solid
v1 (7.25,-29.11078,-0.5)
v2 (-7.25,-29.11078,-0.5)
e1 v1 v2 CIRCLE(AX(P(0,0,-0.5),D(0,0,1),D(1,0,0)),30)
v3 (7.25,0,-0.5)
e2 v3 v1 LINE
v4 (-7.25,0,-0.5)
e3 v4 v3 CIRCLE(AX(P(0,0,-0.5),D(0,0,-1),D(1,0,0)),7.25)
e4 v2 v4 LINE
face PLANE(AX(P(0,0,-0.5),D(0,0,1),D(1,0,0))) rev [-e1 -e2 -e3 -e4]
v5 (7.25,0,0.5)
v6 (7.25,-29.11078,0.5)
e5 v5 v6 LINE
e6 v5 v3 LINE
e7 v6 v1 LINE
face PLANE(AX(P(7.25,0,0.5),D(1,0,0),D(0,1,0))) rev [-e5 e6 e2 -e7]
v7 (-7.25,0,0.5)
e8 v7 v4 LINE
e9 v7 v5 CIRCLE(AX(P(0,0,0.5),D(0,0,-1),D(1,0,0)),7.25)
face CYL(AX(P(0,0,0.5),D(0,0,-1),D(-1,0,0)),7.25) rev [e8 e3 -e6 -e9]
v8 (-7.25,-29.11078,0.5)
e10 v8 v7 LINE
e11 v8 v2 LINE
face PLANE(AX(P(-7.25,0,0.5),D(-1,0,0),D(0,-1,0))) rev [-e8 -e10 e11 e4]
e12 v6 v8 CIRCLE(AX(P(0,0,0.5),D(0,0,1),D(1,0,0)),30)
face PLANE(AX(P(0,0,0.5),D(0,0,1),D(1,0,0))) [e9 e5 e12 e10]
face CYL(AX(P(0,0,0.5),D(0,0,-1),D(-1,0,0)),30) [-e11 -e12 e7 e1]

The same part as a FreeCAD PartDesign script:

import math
import FreeCAD as App
import Part
import Sketcher
Q = App.Units.Quantity

doc = App.newDocument("Part")
params = doc.addObject("Spreadsheet::Sheet", "Params")
for row, (alias, value) in enumerate([
    ("sketch1_radius", "30 mm"),
    ("sketch1_radius2", "7.25 mm"),
    ("pad1_length", "1 mm"),
], start=1):
    params.set(f"A{row}", alias)
    params.set(f"B{row}", "=" + value)
    params.setAlias(f"B{row}", alias)

body = doc.addObject("PartDesign::Body", "Body")

# Sketch on XY plane
sketch1 = body.newObject("Sketcher::SketchObject", "Sketch")
sketch1.AttachmentSupport = (doc.getObject("XY_Plane"), [""])
sketch1.MapMode = "FlatFace"
sketch1.addGeometry([
    Part.LineSegment(App.Vector(-7, -29, 0), App.Vector(-7, 0, 0)),
    Part.ArcOfCircle(Part.Circle(App.Vector(0, 0, 0), App.Vector(0, 0, 1), 7), math.radians(0), math.radians(180)),
    Part.LineSegment(App.Vector(7, 0, 0), App.Vector(7, -29, 0)),
    Part.ArcOfCircle(Part.Circle(App.Vector(0, 0, 0), App.Vector(0, 0, 1), 30), math.radians(-76), math.radians(256)),
], False)
sketch1.addConstraint([
    Sketcher.Constraint("Tangent", 0, 2, 1, 2),
    Sketcher.Constraint("Tangent", 1, 1, 2, 1),
    Sketcher.Constraint("Coincident", 2, 2, 3, 1),
    Sketcher.Constraint("Coincident", 3, 2, 0, 1),
    Sketcher.Constraint("Vertical", 0),
    Sketcher.Constraint("Vertical", 2),
    Sketcher.Constraint("Coincident", 1, 3, -1, 1),
    Sketcher.Constraint("Coincident", 3, 3, -1, 1),
    Sketcher.Constraint("Radius", 3, Q("30 mm")),
    Sketcher.Constraint("Radius", 1, Q("7.25 mm")),
])
sketch1.setExpression("Constraints[8]", "Params.sketch1_radius")
sketch1.setExpression("Constraints[9]", "Params.sketch1_radius2")
pad1 = body.newObject("PartDesign::Pad", "Pad")
pad1.Profile = sketch1
pad1.setExpression("Length", "Params.pad1_length")
pad1.Midplane = True

doc.recompute()
